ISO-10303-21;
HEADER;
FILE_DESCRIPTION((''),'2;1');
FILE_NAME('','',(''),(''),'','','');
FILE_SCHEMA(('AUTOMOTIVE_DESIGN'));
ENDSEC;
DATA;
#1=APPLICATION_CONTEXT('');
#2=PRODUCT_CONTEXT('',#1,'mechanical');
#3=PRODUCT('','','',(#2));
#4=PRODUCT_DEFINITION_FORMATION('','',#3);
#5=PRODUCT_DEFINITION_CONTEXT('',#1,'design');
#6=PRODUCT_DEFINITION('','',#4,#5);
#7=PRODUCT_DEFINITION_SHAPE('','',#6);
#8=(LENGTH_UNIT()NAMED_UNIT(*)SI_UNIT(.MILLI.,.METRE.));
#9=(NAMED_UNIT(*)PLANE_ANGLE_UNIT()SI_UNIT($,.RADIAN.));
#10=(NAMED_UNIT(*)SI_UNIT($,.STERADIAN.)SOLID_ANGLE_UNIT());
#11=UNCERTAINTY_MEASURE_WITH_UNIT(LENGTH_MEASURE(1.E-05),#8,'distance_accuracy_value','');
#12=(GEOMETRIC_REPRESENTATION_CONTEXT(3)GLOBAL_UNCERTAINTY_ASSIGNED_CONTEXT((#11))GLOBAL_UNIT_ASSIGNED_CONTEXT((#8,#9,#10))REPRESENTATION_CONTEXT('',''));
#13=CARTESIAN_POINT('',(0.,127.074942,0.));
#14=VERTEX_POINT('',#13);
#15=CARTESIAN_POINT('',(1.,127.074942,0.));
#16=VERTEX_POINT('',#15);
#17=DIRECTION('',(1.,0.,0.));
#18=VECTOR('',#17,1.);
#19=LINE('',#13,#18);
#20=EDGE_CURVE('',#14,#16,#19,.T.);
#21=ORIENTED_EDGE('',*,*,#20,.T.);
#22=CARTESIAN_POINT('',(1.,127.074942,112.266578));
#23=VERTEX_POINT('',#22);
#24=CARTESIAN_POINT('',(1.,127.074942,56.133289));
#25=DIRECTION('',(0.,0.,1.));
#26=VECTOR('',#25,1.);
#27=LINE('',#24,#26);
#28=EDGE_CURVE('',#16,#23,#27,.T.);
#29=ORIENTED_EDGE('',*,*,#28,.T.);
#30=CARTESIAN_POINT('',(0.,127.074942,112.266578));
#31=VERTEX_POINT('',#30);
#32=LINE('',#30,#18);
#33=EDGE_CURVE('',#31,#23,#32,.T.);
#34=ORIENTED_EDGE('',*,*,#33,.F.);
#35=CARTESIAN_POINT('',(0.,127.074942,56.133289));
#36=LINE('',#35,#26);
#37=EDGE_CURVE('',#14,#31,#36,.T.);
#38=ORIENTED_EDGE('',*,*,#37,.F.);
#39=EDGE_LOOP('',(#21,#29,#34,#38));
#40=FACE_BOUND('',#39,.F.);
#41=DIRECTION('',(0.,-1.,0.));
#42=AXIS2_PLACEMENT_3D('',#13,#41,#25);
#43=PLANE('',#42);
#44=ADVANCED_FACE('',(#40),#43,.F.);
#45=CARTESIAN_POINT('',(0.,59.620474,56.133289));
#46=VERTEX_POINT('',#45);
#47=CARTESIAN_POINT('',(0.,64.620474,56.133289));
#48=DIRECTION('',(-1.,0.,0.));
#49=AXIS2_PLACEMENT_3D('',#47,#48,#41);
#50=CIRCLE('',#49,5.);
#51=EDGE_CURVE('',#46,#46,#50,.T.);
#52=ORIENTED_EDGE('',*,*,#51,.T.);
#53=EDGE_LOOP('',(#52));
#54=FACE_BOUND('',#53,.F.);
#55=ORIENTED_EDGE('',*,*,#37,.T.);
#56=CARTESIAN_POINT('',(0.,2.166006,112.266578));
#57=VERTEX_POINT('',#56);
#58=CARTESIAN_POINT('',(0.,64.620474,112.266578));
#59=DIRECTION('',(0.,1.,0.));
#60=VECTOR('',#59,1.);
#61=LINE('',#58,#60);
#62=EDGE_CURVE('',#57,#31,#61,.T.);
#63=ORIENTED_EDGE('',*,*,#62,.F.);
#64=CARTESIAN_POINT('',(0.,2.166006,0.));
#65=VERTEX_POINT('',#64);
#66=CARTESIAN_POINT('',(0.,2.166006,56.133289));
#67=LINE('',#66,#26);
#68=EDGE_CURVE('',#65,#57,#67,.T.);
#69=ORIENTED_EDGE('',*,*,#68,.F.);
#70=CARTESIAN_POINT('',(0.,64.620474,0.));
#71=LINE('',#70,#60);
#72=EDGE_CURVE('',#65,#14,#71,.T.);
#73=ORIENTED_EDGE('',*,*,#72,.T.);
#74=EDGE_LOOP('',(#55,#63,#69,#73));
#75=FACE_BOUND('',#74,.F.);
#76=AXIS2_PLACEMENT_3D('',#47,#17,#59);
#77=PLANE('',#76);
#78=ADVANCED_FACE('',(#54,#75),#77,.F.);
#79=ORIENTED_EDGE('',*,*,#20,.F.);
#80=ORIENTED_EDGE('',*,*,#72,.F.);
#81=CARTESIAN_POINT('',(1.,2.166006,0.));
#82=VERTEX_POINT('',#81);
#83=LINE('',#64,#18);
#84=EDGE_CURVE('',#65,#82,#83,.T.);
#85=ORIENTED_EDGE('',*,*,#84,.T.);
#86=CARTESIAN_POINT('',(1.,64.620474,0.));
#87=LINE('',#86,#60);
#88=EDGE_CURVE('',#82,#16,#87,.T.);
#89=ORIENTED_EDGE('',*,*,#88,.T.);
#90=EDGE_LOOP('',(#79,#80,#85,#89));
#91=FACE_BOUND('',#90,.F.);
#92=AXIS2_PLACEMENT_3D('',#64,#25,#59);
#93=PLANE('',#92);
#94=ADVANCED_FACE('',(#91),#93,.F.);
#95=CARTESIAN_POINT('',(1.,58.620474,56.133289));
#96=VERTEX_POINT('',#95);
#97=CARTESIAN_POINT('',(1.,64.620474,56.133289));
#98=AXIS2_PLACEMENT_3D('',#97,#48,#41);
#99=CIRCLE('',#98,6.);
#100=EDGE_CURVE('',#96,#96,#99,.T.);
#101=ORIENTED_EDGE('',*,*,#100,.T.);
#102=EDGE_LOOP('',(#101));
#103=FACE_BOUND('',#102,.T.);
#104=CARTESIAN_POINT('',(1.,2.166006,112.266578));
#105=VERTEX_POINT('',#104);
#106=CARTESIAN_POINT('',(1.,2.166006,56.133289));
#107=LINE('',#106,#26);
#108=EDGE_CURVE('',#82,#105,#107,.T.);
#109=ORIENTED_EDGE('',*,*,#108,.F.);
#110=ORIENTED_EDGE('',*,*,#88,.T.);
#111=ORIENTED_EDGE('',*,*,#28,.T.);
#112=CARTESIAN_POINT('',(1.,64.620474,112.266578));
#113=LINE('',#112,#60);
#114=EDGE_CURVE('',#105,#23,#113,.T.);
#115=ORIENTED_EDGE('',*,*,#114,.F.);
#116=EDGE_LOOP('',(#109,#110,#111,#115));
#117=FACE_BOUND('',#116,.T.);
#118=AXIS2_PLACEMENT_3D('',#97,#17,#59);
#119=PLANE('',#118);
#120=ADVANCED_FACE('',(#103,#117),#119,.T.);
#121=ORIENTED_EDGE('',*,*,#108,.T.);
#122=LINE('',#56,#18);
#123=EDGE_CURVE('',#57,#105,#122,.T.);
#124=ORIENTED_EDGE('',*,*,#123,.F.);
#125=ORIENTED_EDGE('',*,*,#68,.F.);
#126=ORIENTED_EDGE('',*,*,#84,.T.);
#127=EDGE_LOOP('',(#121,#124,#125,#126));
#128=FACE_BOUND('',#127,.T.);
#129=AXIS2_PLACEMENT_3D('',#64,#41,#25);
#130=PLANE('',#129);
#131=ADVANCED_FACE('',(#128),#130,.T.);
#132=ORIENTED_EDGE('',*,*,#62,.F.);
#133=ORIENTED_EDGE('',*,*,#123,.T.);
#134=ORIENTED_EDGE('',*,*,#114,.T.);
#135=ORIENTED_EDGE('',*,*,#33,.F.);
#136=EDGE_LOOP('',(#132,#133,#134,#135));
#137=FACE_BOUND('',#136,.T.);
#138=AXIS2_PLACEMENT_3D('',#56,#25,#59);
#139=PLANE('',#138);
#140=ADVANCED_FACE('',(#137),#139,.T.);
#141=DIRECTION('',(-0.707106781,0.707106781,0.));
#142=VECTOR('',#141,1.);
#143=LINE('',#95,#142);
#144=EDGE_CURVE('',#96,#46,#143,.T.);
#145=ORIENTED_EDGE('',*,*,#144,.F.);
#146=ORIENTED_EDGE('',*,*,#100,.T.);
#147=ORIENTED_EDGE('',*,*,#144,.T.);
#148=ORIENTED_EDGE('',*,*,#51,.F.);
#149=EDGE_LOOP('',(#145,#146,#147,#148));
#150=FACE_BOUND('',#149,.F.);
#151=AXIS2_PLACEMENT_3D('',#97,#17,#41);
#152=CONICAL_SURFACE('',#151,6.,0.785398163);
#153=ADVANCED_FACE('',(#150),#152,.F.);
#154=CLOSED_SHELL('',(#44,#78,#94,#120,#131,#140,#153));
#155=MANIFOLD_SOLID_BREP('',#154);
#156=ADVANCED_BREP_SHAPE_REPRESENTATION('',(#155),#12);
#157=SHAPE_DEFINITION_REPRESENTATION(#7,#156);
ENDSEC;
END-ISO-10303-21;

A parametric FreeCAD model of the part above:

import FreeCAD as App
import Part
import Sketcher


def add_polygon(sketch, points):
    """Adds a closed chain of lines whose ends are joined by coincident constraints."""
    first, n = sketch.GeometryCount, len(points)
    for a, b in zip(points, points[1:] + points[:1]):
        sketch.addGeometry(Part.LineSegment(App.Vector(*a, 0), App.Vector(*b, 0)), False)
    for i in range(n):
        sketch.addConstraint(Sketcher.Constraint("Coincident", first + i, 2, first + (i + 1) % n, 1))

doc = App.newDocument("Part")
body = doc.addObject("PartDesign::Body", "Body")

# Sketch on YZ plane
sketch1 = doc.addObject("Sketcher::SketchObject", "Sketch")
body.addObject(sketch1)
sketch1.AttachmentSupport = (doc.YZ_Plane, [""])
sketch1.MapMode = "FlatFace"
add_polygon(sketch1, [(2, 112), (2, 0), (127, 0), (127, 112)])  # lines 0-3
sketch1.addConstraint([
    Sketcher.Constraint("Vertical", 0),
    Sketcher.Constraint("Horizontal", 1),
    Sketcher.Constraint("Vertical", 2),
    Sketcher.Constraint("Horizontal", 3),
    Sketcher.Constraint("PointOnObject", 0, 2, -1),
    Sketcher.Constraint("DistanceX", 1, 1, 1, 2, 124.908936),
    Sketcher.Constraint("DistanceY", 0, 2, 0, 1, 112.266578),
    Sketcher.Constraint("DistanceX", -1, 1, 1, 2, 127.074942),
])
pad1 = doc.addObject("PartDesign::Pad", "Pad")
body.addObject(pad1)
pad1.Profile = sketch1
pad1.Length = 1

# Sketch on YZ plane
sketch2 = doc.addObject("Sketcher::SketchObject", "Sketch001")
body.addObject(sketch2)
sketch2.AttachmentSupport = (doc.YZ_Plane, [""])
sketch2.MapMode = "FlatFace"
sketch2.AttachmentOffset = App.Placement(App.Vector(0, 0, 1), App.Rotation())
sketch2.addGeometry(Part.Circle(App.Vector(64.6, 56.1, 0), App.Vector(0, 0, 1), 3), False)
sketch2.addConstraint([
    Sketcher.Constraint("Diameter", 0, 6.0),
    Sketcher.Constraint("DistanceY", -1, 1, 0, 3, 56.133289),
    Sketcher.Constraint("DistanceX", -1, 1, 0, 3, 64.620474),
])
doc.recompute()
hole = doc.addObject("PartDesign::Hole", "Hole")
body.addObject(hole)
hole.Profile = sketch2
hole.ThreadType = "None"
hole.Diameter = 6
hole.DepthType = "ThroughAll"
hole.HoleCutType = "Countersink"
hole.HoleCutDiameter = 12
hole.HoleCutCountersinkAngle = 90

doc.recompute()
